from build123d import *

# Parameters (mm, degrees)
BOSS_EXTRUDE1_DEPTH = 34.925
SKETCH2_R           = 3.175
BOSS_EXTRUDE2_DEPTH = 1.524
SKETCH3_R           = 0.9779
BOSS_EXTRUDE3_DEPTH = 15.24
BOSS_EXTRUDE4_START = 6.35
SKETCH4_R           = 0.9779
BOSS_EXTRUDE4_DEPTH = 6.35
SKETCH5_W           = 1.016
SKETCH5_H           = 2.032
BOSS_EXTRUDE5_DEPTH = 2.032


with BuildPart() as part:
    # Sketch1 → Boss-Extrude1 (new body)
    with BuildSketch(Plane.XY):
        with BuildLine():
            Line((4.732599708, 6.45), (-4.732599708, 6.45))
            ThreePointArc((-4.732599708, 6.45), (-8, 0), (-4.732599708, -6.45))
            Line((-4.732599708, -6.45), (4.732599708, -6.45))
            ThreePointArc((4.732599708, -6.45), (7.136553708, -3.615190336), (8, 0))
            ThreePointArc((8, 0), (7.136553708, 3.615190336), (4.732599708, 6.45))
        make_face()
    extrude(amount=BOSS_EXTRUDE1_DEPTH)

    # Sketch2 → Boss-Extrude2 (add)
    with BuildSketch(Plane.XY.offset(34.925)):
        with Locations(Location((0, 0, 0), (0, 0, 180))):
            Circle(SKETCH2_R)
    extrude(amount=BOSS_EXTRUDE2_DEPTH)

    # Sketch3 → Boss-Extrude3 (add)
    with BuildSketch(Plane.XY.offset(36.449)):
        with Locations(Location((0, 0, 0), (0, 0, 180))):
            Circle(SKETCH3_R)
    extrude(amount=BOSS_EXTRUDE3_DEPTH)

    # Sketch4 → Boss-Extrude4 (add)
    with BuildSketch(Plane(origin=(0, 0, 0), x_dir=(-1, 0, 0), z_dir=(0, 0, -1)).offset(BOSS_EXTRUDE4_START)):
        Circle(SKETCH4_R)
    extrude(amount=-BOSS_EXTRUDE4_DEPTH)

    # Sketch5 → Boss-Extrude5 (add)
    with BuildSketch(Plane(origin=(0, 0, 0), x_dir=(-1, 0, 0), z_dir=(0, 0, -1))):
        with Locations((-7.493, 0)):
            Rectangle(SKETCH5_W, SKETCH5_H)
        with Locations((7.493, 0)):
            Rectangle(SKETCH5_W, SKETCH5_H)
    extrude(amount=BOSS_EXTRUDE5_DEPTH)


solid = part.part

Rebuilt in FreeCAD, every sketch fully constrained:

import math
import FreeCAD as App
import Part
import Sketcher

V = App.Vector
Q = App.Units.Quantity

doc = App.newDocument("Part")
body = doc.addObject("PartDesign::Body", "Body")

# Sketch on XY plane
sketch1 = doc.addObject("Sketcher::SketchObject", "Sketch")
body.addObject(sketch1)
sketch1.AttachmentSupport = (doc.XY_Plane, [""])
sketch1.MapMode = "FlatFace"
sketch1.addGeometry(Part.LineSegment(V(4.7326, 6.45, 0), V(-4.7326, 6.45, 0)), False)
sketch1.addGeometry(Part.ArcOfCircle(Part.Circle(V(0, 0, 0), V(0, 0, 1), 8), math.radians(126.268852), math.radians(233.731148)), False)
sketch1.addGeometry(Part.LineSegment(V(-4.7326, -6.45, 0), V(4.7326, -6.45, 0)), False)
sketch1.addGeometry(Part.ArcOfCircle(Part.Circle(V(0, 0, 0), V(0, 0, 1), 8), math.radians(-53.731148), math.radians(0)), False)
sketch1.addGeometry(Part.ArcOfCircle(Part.Circle(V(0, 0, 0), V(0, 0, 1), 8), math.radians(0), math.radians(53.731148)), False)
sketch1.addConstraint(Sketcher.Constraint("Coincident", 0, 2, 1, 1))
sketch1.addConstraint(Sketcher.Constraint("Coincident", 1, 2, 2, 1))
sketch1.addConstraint(Sketcher.Constraint("Coincident", 2, 2, 3, 1))
sketch1.addConstraint(Sketcher.Constraint("Tangent", 3, 2, 4, 1))
sketch1.addConstraint(Sketcher.Constraint("Coincident", 4, 2, 0, 1))
sketch1.addConstraint(Sketcher.Constraint("Horizontal", 0))
sketch1.addConstraint(Sketcher.Constraint("Horizontal", 2))
sketch1.addConstraint(Sketcher.Constraint("Coincident", 1, 3, -1, 1))
sketch1.addConstraint(Sketcher.Constraint("Coincident", 3, 3, -1, 1))
sketch1.addConstraint(Sketcher.Constraint("Equal", 1, 3))
sketch1.addConstraint(Sketcher.Constraint("Equal", 3, 4))
sketch1.addConstraint(Sketcher.Constraint("PointOnObject", 3, 2, -1))
sketch1.addConstraint(Sketcher.Constraint("Vertical", 0, 2, 1, 2))
sketch1.addConstraint(Sketcher.Constraint("Radius", 1, 8.0))
sketch1.addConstraint(Sketcher.Constraint("DistanceX", 0, 2, 0, 1, 9.465199))
pad1 = doc.addObject("PartDesign::Pad", "Pad")
body.addObject(pad1)
pad1.Profile = sketch1
pad1.Length = Q("1.375 in")

# Sketch on XY plane
sketch2 = doc.addObject("Sketcher::SketchObject", "Sketch001")
body.addObject(sketch2)
sketch2.AttachmentSupport = (doc.XY_Plane, [""])
sketch2.MapMode = "FlatFace"
sketch2.AttachmentOffset = App.Placement(V(0, 0, 1.375 * 25.4), App.Rotation())
sketch2.addGeometry(Part.Circle(V(0, 0, 0), V(0, 0, 1), 3.175), False)
sketch2.addConstraint(Sketcher.Constraint("Coincident", 0, 3, -1, 1))
sketch2.addConstraint(Sketcher.Constraint("Diameter", 0, Q("0.25 in")))
pad2 = doc.addObject("PartDesign::Pad", "Pad001")
body.addObject(pad2)
pad2.Profile = sketch2
pad2.Length = Q("0.06 in")

# Sketch on XY plane
sketch3 = doc.addObject("Sketcher::SketchObject", "Sketch002")
body.addObject(sketch3)
sketch3.AttachmentSupport = (doc.XY_Plane, [""])
sketch3.MapMode = "FlatFace"
sketch3.AttachmentOffset = App.Placement(V(0, 0, 1.435 * 25.4), App.Rotation())
sketch3.addGeometry(Part.Circle(V(0, 0, 0), V(0, 0, 1), 0.9779), False)
sketch3.addConstraint(Sketcher.Constraint("Coincident", 0, 3, -1, 1))
sketch3.addConstraint(Sketcher.Constraint("Diameter", 0, Q("0.077 in")))
pad3 = doc.addObject("PartDesign::Pad", "Pad002")
body.addObject(pad3)
pad3.Profile = sketch3
pad3.Length = Q("0.6 in")

# Sketch on XY plane
sketch4 = doc.addObject("Sketcher::SketchObject", "Sketch003")
body.addObject(sketch4)
sketch4.AttachmentSupport = (doc.XY_Plane, [""])
sketch4.MapMode = "FlatFace"
sketch4.AttachmentOffset = App.Placement(V(0, 0, -0.25 * 25.4), App.Rotation())
sketch4.addGeometry(Part.Circle(V(0, 0, 0), V(0, 0, 1), 0.9779), False)
sketch4.addConstraint(Sketcher.Constraint("Coincident", 0, 3, -1, 1))
sketch4.addConstraint(Sketcher.Constraint("Diameter", 0, Q("0.077 in")))
pad4 = doc.addObject("PartDesign::Pad", "Pad003")
body.addObject(pad4)
pad4.Profile = sketch4
pad4.Length = Q("0.25 in")

# Sketch on XY plane
sketch5 = doc.addObject("Sketcher::SketchObject", "Sketch004")
body.addObject(sketch5)
sketch5.AttachmentSupport = (doc.XY_Plane, [""])
sketch5.MapMode = "FlatFace"
sketch5.addGeometry(Part.LineSegment(V(8.001, 1.016, 0), V(8.001, -1.016, 0)), False)
sketch5.addGeometry(Part.LineSegment(V(8.001, -1.016, 0), V(6.985, -1.016, 0)), False)
sketch5.addGeometry(Part.LineSegment(V(6.985, -1.016, 0), V(6.985, 1.016, 0)), False)
sketch5.addGeometry(Part.LineSegment(V(6.985, 1.016, 0), V(8.001, 1.016, 0)), False)
sketch5.addGeometry(Part.LineSegment(V(-6.985, 1.016, 0), V(-6.985, -1.016, 0)), False)
sketch5.addGeometry(Part.LineSegment(V(-6.985, -1.016, 0), V(-8.001, -1.016, 0)), False)
sketch5.addGeometry(Part.LineSegment(V(-8.001, -1.016, 0), V(-8.001, 1.016, 0)), False)
sketch5.addGeometry(Part.LineSegment(V(-8.001, 1.016, 0), V(-6.985, 1.016, 0)), False)
sketch5.addConstraint(Sketcher.Constraint("Coincident", 0, 2, 1, 1))
sketch5.addConstraint(Sketcher.Constraint("Coincident", 1, 2, 2, 1))
sketch5.addConstraint(Sketcher.Constraint("Coincident", 2, 2, 3, 1))
sketch5.addConstraint(Sketcher.Constraint("Coincident", 3, 2, 0, 1))
sketch5.addConstraint(Sketcher.Constraint("Coincident", 4, 2, 5, 1))
sketch5.addConstraint(Sketcher.Constraint("Coincident", 5, 2, 6, 1))
sketch5.addConstraint(Sketcher.Constraint("Coincident", 6, 2, 7, 1))
sketch5.addConstraint(Sketcher.Constraint("Coincident", 7, 2, 4, 1))
sketch5.addConstraint(Sketcher.Constraint("Vertical", 0))
sketch5.addConstraint(Sketcher.Constraint("Horizontal", 1))
sketch5.addConstraint(Sketcher.Constraint("Vertical", 2))
sketch5.addConstraint(Sketcher.Constraint("Horizontal", 3))
sketch5.addConstraint(Sketcher.Constraint("Vertical", 4))
sketch5.addConstraint(Sketcher.Constraint("Horizontal", 5))
sketch5.addConstraint(Sketcher.Constraint("Vertical", 6))
sketch5.addConstraint(Sketcher.Constraint("Horizontal", 7))
sketch5.addConstraint(Sketcher.Constraint("Symmetric", 2, 2, 4, 2, -1, 1))
sketch5.addConstraint(Sketcher.Constraint("Symmetric", 0, 2, 6, 2, -1, 1))
sketch5.addConstraint(Sketcher.Constraint("Horizontal", 1, 2, 4, 2))
sketch5.addConstraint(Sketcher.Constraint("DistanceX", 1, 2, 1, 1, Q("0.04 in")))
sketch5.addConstraint(Sketcher.Constraint("DistanceY", 0, 2, 0, 1, Q("0.08 in")))
sketch5.addConstraint(Sketcher.Constraint("DistanceX", 4, 2, 1, 2, Q("0.55 in")))
pad5 = doc.addObject("PartDesign::Pad", "Pad004")
body.addObject(pad5)
pad5.Profile = sketch5
pad5.Length = Q("0.08 in")
pad5.Reversed = True

doc.recompute()
